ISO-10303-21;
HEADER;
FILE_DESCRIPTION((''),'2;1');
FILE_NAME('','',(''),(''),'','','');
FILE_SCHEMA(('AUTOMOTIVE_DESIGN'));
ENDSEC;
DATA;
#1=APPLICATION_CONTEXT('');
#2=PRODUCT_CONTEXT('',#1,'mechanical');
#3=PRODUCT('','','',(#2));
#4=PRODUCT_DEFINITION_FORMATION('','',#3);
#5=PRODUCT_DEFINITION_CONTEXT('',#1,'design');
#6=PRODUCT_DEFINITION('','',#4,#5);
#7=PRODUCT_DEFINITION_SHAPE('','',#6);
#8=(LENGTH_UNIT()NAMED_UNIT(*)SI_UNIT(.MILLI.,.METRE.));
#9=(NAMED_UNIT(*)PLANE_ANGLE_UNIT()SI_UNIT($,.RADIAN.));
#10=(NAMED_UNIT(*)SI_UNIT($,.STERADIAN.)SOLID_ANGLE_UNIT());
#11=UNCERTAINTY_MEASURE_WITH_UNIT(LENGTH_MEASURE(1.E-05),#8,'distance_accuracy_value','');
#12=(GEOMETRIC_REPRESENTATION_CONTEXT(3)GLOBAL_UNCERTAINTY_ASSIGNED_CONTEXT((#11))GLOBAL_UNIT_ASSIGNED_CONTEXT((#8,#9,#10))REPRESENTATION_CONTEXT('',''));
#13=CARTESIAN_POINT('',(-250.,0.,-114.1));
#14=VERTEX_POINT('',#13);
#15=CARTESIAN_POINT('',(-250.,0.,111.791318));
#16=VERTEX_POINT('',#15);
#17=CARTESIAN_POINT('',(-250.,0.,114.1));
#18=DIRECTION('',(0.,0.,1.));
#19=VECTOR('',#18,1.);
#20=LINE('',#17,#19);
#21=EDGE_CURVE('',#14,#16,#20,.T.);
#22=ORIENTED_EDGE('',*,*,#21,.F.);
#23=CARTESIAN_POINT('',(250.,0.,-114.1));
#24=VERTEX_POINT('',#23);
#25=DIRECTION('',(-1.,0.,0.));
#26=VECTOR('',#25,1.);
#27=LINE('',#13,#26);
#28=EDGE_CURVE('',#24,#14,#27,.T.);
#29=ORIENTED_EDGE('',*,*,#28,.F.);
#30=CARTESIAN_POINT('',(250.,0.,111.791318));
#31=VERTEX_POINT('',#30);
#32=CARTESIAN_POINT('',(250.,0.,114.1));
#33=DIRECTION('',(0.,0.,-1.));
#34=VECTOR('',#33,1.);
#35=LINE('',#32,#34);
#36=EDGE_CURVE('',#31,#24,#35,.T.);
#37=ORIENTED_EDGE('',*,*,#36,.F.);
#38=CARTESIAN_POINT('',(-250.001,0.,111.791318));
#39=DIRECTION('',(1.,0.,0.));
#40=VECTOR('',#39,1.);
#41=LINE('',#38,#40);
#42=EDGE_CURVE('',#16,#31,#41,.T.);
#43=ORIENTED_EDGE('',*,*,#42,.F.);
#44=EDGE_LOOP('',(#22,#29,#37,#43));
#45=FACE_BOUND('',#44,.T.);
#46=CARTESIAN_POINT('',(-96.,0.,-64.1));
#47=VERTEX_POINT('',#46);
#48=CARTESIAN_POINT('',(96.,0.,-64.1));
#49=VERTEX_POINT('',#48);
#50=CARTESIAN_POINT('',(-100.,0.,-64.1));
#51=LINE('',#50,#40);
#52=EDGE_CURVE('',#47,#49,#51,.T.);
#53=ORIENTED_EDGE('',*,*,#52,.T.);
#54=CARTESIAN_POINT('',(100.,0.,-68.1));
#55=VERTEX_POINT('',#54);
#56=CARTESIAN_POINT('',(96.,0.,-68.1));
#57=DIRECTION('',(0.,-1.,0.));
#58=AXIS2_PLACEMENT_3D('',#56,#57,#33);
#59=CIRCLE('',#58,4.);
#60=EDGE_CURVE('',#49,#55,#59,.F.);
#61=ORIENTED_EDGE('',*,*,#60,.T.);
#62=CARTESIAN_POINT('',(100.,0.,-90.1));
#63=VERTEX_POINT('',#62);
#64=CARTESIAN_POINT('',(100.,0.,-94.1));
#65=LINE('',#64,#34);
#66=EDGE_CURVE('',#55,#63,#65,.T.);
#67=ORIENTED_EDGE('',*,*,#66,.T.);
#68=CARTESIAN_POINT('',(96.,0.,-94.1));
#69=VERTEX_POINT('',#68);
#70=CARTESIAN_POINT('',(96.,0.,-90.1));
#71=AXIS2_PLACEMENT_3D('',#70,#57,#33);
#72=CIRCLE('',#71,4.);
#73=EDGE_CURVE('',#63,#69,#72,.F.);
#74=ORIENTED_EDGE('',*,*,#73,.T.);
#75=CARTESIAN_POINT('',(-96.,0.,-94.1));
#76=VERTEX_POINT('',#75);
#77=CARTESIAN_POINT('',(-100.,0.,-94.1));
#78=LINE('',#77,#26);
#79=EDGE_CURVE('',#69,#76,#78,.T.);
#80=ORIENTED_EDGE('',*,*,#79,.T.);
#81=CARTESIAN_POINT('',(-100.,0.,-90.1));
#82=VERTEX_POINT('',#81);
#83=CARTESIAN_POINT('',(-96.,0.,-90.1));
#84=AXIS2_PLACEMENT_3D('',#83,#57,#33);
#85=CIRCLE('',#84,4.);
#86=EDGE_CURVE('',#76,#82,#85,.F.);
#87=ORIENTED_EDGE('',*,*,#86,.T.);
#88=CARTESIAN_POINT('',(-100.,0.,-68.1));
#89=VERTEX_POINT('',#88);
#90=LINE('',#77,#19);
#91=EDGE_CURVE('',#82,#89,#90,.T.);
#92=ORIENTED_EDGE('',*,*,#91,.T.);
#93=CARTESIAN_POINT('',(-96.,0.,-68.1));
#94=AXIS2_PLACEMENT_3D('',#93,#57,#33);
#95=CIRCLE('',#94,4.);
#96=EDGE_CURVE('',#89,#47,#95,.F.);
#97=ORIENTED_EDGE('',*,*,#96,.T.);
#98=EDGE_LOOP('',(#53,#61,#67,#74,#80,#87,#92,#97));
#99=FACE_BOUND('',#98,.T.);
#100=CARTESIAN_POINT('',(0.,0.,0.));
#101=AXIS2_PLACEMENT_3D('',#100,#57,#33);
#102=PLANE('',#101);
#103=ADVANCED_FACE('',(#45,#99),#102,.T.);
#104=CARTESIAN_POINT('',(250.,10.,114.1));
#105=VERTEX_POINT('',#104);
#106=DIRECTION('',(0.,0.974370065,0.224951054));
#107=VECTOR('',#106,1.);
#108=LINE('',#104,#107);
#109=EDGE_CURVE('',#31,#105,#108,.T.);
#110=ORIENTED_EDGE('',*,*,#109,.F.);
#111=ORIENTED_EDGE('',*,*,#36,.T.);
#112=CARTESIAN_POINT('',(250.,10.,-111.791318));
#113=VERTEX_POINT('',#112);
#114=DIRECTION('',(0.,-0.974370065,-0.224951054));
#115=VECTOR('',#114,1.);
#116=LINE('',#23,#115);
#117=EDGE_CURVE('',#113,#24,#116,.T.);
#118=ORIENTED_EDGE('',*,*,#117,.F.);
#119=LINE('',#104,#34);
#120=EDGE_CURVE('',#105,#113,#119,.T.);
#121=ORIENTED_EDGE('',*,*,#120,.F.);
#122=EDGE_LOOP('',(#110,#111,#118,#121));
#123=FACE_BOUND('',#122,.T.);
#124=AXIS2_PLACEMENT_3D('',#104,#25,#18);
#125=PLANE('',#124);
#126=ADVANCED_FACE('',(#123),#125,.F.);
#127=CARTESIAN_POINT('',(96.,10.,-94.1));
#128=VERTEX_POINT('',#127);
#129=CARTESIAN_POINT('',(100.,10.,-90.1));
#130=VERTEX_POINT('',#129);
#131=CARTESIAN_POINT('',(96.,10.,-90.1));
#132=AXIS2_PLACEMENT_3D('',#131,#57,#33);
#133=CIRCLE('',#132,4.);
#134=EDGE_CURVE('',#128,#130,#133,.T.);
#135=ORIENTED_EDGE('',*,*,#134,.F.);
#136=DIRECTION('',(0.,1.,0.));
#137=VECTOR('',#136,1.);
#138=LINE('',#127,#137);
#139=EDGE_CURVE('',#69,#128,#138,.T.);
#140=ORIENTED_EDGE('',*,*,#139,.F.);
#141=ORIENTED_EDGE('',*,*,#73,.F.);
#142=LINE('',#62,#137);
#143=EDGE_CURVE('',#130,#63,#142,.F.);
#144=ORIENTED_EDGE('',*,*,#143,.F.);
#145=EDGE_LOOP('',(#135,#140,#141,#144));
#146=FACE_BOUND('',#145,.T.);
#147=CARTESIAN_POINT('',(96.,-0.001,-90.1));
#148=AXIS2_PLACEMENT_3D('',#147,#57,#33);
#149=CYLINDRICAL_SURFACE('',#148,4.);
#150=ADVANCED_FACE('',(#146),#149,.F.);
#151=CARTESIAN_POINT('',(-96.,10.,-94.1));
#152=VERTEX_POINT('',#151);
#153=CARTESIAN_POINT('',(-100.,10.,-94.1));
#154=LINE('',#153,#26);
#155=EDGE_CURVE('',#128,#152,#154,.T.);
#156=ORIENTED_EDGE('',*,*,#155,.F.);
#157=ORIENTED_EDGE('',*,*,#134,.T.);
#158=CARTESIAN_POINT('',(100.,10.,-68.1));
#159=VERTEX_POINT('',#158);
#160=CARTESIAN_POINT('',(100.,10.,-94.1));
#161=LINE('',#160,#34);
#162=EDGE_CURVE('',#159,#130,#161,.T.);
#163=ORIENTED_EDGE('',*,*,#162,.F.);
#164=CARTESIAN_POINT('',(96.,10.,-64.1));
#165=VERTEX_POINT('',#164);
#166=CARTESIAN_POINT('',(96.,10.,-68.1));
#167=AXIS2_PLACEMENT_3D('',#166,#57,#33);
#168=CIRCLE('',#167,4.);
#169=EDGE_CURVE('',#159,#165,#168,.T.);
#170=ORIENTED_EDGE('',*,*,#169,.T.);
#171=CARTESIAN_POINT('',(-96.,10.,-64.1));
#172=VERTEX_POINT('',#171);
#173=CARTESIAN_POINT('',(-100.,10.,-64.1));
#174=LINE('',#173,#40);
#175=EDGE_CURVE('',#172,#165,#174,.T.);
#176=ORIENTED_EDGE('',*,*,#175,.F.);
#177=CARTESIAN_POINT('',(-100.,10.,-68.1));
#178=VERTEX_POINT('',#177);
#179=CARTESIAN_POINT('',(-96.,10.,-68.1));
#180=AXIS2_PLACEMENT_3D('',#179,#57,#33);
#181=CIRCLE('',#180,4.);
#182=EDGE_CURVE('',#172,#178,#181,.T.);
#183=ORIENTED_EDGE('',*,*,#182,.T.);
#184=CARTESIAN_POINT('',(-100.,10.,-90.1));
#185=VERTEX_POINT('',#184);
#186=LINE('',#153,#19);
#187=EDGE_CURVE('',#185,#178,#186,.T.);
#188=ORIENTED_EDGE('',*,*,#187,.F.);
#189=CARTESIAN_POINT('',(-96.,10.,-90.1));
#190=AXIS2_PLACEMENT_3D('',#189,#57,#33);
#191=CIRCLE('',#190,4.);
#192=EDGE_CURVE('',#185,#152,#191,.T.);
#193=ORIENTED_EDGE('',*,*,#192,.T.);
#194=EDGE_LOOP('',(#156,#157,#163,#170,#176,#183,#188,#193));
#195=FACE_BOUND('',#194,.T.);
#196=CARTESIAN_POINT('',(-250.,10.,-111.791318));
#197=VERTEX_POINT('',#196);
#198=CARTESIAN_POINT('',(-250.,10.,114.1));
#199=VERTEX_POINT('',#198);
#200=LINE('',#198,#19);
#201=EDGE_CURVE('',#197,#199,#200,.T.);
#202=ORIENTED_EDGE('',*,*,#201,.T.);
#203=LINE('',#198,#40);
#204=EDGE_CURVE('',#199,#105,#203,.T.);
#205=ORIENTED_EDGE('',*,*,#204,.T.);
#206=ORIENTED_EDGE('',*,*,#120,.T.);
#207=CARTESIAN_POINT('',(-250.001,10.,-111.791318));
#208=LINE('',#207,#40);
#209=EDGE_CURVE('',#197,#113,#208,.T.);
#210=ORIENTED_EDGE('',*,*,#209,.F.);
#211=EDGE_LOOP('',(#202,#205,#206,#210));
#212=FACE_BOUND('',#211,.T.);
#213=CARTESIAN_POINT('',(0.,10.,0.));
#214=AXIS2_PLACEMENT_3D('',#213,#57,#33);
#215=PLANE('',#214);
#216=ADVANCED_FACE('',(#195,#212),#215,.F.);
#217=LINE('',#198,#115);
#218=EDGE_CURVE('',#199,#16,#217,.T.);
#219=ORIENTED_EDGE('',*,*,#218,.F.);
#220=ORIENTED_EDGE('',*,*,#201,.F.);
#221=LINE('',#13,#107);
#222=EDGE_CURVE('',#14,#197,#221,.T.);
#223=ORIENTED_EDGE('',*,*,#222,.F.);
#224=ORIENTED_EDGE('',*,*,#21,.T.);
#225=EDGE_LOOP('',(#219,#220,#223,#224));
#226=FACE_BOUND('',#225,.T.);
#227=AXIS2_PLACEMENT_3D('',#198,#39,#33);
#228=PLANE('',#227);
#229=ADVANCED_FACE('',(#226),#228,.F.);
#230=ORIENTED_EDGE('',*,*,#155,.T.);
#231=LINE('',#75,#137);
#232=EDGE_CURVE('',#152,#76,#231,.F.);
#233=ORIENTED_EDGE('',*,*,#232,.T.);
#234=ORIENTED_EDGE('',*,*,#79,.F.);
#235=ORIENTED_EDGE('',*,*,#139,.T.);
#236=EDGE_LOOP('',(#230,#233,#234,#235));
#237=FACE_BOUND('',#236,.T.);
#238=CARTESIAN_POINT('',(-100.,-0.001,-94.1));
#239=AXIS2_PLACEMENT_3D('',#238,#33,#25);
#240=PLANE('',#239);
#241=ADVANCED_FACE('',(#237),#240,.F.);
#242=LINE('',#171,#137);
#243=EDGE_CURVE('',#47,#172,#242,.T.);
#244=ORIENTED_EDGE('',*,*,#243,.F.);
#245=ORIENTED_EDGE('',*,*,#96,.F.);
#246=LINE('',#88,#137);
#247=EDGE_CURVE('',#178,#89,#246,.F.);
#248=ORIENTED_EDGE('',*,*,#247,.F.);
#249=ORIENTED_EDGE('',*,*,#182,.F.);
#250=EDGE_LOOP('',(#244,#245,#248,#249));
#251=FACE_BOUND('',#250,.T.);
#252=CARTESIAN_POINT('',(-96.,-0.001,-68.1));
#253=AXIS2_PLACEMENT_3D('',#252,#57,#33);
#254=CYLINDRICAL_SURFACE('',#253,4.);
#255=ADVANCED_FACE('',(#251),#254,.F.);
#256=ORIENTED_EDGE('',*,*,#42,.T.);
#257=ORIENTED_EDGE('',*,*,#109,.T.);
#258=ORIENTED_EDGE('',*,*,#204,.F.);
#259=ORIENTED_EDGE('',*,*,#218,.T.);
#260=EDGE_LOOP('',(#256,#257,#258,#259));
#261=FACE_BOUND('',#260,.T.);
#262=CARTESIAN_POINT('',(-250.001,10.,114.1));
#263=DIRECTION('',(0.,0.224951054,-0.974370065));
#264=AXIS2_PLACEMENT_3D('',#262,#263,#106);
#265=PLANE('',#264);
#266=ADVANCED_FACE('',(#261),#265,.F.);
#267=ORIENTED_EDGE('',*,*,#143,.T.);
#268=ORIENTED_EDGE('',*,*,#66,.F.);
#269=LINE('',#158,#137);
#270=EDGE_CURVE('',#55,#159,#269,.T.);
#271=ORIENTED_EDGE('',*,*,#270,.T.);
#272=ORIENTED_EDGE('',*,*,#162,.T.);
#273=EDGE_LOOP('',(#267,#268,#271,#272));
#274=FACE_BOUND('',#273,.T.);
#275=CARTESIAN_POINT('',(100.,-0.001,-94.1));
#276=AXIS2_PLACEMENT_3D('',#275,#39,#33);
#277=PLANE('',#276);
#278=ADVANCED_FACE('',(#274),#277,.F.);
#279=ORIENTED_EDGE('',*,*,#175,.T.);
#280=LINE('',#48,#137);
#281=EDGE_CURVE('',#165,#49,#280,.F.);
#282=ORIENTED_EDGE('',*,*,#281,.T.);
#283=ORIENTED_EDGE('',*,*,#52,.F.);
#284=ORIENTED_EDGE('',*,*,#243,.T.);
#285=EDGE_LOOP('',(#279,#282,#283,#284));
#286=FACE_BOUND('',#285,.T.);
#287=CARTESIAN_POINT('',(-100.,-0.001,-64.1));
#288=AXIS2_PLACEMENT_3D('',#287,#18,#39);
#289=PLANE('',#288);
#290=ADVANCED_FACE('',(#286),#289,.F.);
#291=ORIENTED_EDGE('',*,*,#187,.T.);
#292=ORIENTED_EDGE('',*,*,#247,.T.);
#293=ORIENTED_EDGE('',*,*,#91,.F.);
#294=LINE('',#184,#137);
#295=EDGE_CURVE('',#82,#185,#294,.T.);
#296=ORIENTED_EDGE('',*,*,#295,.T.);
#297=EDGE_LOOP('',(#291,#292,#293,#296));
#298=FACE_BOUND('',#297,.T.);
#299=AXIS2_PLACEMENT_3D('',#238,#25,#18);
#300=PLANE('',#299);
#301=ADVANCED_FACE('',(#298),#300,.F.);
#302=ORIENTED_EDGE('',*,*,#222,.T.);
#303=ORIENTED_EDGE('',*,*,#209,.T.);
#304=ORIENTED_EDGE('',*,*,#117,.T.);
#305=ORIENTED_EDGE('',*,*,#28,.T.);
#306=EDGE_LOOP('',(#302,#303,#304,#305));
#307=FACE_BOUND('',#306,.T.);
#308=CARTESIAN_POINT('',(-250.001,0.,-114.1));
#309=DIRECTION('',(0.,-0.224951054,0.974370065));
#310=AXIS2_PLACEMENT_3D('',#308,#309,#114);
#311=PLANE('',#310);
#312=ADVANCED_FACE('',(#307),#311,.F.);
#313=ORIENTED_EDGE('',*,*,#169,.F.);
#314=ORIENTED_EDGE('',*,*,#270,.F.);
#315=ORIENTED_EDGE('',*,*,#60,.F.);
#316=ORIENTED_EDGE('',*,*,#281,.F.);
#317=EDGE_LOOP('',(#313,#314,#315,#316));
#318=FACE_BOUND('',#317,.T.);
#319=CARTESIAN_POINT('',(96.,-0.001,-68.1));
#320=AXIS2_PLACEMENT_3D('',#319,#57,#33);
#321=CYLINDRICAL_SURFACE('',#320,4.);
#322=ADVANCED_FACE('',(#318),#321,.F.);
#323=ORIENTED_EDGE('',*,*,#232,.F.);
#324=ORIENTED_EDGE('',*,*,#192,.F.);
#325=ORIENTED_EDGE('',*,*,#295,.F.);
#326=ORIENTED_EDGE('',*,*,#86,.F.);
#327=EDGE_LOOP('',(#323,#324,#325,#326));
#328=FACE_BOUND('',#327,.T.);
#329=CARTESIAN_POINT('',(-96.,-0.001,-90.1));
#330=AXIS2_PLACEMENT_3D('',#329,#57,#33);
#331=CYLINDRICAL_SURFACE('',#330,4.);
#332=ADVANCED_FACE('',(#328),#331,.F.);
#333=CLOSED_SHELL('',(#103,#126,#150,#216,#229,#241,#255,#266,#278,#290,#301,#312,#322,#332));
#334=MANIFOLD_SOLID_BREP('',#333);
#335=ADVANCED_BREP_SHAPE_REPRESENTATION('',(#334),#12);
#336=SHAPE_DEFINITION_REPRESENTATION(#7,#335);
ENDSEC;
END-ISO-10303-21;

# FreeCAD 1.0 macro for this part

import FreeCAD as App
import Part
import Sketcher
from FreeCAD import Vector
Q = App.Units.Quantity


def edges_at(feature, points):
    """Names of the edges that pass closest to the given points."""
    edges = feature.Shape.Edges
    near = lambda p: min(range(len(edges)), key=lambda i: edges[i].distToShape(Part.Vertex(*p))[0])
    return sorted({f"Edge{near(p) + 1}" for p in points})

doc = App.newDocument("Part")
body = doc.addObject("PartDesign::Body", "Body")

sketch1 = doc.addObject("Sketcher::SketchObject", "Sketch")
body.addObject(sketch1)
sketch1.AttachmentSupport = (doc.XZ_Plane, [""])
sketch1.MapMode = "FlatFace"
sketch1.addGeometry(Part.LineSegment(Vector(-250, -114.1, 0), Vector(-250, 114.1, 0)), False)
sketch1.addGeometry(Part.LineSegment(Vector(-250, 114.1, 0), Vector(250, 114.1, 0)), False)
sketch1.addGeometry(Part.LineSegment(Vector(250, 114.1, 0), Vector(250, -114.1, 0)), False)
sketch1.addGeometry(Part.LineSegment(Vector(250, -114.1, 0), Vector(-250, -114.1, 0)), False)
sketch1.addConstraint(Sketcher.Constraint("Coincident", 0, 2, 1, 1))
sketch1.addConstraint(Sketcher.Constraint("Coincident", 1, 2, 2, 1))
sketch1.addConstraint(Sketcher.Constraint("Coincident", 2, 2, 3, 1))
sketch1.addConstraint(Sketcher.Constraint("Coincident", 3, 2, 0, 1))
sketch1.addConstraint(Sketcher.Constraint("Vertical", 0))
sketch1.addConstraint(Sketcher.Constraint("Horizontal", 1))
sketch1.addConstraint(Sketcher.Constraint("Vertical", 2))
sketch1.addConstraint(Sketcher.Constraint("Horizontal", 3))
sketch1.addConstraint(Sketcher.Constraint("Symmetric", 0, 2, 2, 2, -1, 1))
sketch1.addConstraint(Sketcher.Constraint("DistanceX", 1, 1, 1, 2, Q("500 mm")))
sketch1.addConstraint(Sketcher.Constraint("DistanceY", 0, 1, 0, 2, Q("228.2 mm")))
pad1 = doc.addObject("PartDesign::Pad", "Pad")
body.addObject(pad1)
pad1.Profile = sketch1
pad1.Length = 10
pad1.Reversed = True

sketch2 = doc.addObject("Sketcher::SketchObject", "Sketch001")
body.addObject(sketch2)
sketch2.AttachmentSupport = (doc.XZ_Plane, [""])
sketch2.MapMode = "FlatFace"
sketch2.AttachmentOffset = App.Placement(Vector(0, 0, -10), App.Rotation())
sketch2.addGeometry(Part.LineSegment(Vector(-100, -94.1, 0), Vector(-100, -64.1, 0)), False)
sketch2.addGeometry(Part.LineSegment(Vector(-100, -64.1, 0), Vector(100, -64.1, 0)), False)
sketch2.addGeometry(Part.LineSegment(Vector(100, -64.1, 0), Vector(100, -94.1, 0)), False)
sketch2.addGeometry(Part.LineSegment(Vector(100, -94.1, 0), Vector(-100, -94.1, 0)), False)
sketch2.addConstraint(Sketcher.Constraint("Coincident", 0, 2, 1, 1))
sketch2.addConstraint(Sketcher.Constraint("Coincident", 1, 2, 2, 1))
sketch2.addConstraint(Sketcher.Constraint("Coincident", 2, 2, 3, 1))
sketch2.addConstraint(Sketcher.Constraint("Coincident", 3, 2, 0, 1))
sketch2.addConstraint(Sketcher.Constraint("Vertical", 0))
sketch2.addConstraint(Sketcher.Constraint("Horizontal", 1))
sketch2.addConstraint(Sketcher.Constraint("Vertical", 2))
sketch2.addConstraint(Sketcher.Constraint("Horizontal", 3))
sketch2.addConstraint(Sketcher.Constraint("DistanceX", 1, 1, 1, 2, Q("200 mm")))
sketch2.addConstraint(Sketcher.Constraint("DistanceY", 0, 1, 0, 2, Q("30 mm")))
sketch2.addConstraint(Sketcher.Constraint("DistanceX", 0, 2, -1, 1, Q("100 mm")))
sketch2.addConstraint(Sketcher.Constraint("DistanceY", 0, 2, -1, 1, Q("64.1 mm")))
pocket1 = doc.addObject("PartDesign::Pocket", "Pocket")
body.addObject(pocket1)
pocket1.Profile = sketch2
pocket1.Length = 10
pocket1.Reversed = True
doc.recompute()

fillet = doc.addObject("PartDesign::Fillet", "Fillet")
body.addObject(fillet)
fillet.Base = (pocket1, edges_at(pocket1, [
    (100, 5, -94.1),
    (100, 5, -64.1),
    (-100, 5, -64.1),
    (-100, 5, -94.1),
]))
fillet.Radius = 4

sketch3 = doc.addObject("Sketcher::SketchObject", "Sketch002")
body.addObject(sketch3)
sketch3.AttachmentSupport = (doc.YZ_Plane, [""])
sketch3.MapMode = "FlatFace"
sketch3.AttachmentOffset = App.Placement(Vector(0, 0, 250), App.Rotation())
sketch3.addGeometry(Part.LineSegment(Vector(10, -111.791318, 0), Vector(0, -114.1, 0)), False)
sketch3.addGeometry(Part.LineSegment(Vector(0, -114.1, 0), Vector(10, -114.1, 0)), False)
sketch3.addGeometry(Part.LineSegment(Vector(10, -114.1, 0), Vector(10, -111.791318, 0)), False)
sketch3.addConstraint(Sketcher.Constraint("Coincident", 0, 2, 1, 1))
sketch3.addConstraint(Sketcher.Constraint("Coincident", 1, 2, 2, 1))
sketch3.addConstraint(Sketcher.Constraint("Coincident", 2, 2, 0, 1))
sketch3.addConstraint(Sketcher.Constraint("Horizontal", 1))
sketch3.addConstraint(Sketcher.Constraint("Vertical", 2))
sketch3.addConstraint(Sketcher.Constraint("PointOnObject", 0, 2, -2))
sketch3.addConstraint(Sketcher.Constraint("DistanceX", 1, 1, 1, 2, Q("10 mm")))
sketch3.addConstraint(Sketcher.Constraint("Angle", 0, Q("-167 deg")))
sketch3.addConstraint(Sketcher.Constraint("DistanceY", 0, 2, -1, 1, Q("114.1 mm")))
pocket2 = doc.addObject("PartDesign::Pocket", "Pocket001")
body.addObject(pocket2)
pocket2.Profile = sketch3
pocket2.Type = "UpToFirst"

sketch4 = doc.addObject("Sketcher::SketchObject", "Sketch003")
body.addObject(sketch4)
sketch4.AttachmentSupport = (doc.YZ_Plane, [""])
sketch4.MapMode = "FlatFace"
sketch4.AttachmentOffset = App.Placement(Vector(0, 0, 250), App.Rotation())
sketch4.addGeometry(Part.LineSegment(Vector(10, 114.1, 0), Vector(0, 114.1, 0)), False)
sketch4.addGeometry(Part.LineSegment(Vector(0, 114.1, 0), Vector(0, 111.791318, 0)), False)
sketch4.addGeometry(Part.LineSegment(Vector(0, 111.791318, 0), Vector(10, 114.1, 0)), False)
sketch4.addConstraint(Sketcher.Constraint("Coincident", 0, 2, 1, 1))
sketch4.addConstraint(Sketcher.Constraint("Coincident", 1, 2, 2, 1))
sketch4.addConstraint(Sketcher.Constraint("Coincident", 2, 2, 0, 1))
sketch4.addConstraint(Sketcher.Constraint("Horizontal", 0))
sketch4.addConstraint(Sketcher.Constraint("Vertical", 1))
sketch4.addConstraint(Sketcher.Constraint("PointOnObject", 0, 2, -2))
sketch4.addConstraint(Sketcher.Constraint("DistanceX", 0, 2, 0, 1, Q("10 mm")))
sketch4.addConstraint(Sketcher.Constraint("Angle", 2, Q("13 deg")))
sketch4.addConstraint(Sketcher.Constraint("DistanceY", -1, 1, 0, 2, Q("114.1 mm")))
pocket3 = doc.addObject("PartDesign::Pocket", "Pocket002")
body.addObject(pocket3)
pocket3.Profile = sketch4
pocket3.Type = "UpToFirst"

doc.recompute()
